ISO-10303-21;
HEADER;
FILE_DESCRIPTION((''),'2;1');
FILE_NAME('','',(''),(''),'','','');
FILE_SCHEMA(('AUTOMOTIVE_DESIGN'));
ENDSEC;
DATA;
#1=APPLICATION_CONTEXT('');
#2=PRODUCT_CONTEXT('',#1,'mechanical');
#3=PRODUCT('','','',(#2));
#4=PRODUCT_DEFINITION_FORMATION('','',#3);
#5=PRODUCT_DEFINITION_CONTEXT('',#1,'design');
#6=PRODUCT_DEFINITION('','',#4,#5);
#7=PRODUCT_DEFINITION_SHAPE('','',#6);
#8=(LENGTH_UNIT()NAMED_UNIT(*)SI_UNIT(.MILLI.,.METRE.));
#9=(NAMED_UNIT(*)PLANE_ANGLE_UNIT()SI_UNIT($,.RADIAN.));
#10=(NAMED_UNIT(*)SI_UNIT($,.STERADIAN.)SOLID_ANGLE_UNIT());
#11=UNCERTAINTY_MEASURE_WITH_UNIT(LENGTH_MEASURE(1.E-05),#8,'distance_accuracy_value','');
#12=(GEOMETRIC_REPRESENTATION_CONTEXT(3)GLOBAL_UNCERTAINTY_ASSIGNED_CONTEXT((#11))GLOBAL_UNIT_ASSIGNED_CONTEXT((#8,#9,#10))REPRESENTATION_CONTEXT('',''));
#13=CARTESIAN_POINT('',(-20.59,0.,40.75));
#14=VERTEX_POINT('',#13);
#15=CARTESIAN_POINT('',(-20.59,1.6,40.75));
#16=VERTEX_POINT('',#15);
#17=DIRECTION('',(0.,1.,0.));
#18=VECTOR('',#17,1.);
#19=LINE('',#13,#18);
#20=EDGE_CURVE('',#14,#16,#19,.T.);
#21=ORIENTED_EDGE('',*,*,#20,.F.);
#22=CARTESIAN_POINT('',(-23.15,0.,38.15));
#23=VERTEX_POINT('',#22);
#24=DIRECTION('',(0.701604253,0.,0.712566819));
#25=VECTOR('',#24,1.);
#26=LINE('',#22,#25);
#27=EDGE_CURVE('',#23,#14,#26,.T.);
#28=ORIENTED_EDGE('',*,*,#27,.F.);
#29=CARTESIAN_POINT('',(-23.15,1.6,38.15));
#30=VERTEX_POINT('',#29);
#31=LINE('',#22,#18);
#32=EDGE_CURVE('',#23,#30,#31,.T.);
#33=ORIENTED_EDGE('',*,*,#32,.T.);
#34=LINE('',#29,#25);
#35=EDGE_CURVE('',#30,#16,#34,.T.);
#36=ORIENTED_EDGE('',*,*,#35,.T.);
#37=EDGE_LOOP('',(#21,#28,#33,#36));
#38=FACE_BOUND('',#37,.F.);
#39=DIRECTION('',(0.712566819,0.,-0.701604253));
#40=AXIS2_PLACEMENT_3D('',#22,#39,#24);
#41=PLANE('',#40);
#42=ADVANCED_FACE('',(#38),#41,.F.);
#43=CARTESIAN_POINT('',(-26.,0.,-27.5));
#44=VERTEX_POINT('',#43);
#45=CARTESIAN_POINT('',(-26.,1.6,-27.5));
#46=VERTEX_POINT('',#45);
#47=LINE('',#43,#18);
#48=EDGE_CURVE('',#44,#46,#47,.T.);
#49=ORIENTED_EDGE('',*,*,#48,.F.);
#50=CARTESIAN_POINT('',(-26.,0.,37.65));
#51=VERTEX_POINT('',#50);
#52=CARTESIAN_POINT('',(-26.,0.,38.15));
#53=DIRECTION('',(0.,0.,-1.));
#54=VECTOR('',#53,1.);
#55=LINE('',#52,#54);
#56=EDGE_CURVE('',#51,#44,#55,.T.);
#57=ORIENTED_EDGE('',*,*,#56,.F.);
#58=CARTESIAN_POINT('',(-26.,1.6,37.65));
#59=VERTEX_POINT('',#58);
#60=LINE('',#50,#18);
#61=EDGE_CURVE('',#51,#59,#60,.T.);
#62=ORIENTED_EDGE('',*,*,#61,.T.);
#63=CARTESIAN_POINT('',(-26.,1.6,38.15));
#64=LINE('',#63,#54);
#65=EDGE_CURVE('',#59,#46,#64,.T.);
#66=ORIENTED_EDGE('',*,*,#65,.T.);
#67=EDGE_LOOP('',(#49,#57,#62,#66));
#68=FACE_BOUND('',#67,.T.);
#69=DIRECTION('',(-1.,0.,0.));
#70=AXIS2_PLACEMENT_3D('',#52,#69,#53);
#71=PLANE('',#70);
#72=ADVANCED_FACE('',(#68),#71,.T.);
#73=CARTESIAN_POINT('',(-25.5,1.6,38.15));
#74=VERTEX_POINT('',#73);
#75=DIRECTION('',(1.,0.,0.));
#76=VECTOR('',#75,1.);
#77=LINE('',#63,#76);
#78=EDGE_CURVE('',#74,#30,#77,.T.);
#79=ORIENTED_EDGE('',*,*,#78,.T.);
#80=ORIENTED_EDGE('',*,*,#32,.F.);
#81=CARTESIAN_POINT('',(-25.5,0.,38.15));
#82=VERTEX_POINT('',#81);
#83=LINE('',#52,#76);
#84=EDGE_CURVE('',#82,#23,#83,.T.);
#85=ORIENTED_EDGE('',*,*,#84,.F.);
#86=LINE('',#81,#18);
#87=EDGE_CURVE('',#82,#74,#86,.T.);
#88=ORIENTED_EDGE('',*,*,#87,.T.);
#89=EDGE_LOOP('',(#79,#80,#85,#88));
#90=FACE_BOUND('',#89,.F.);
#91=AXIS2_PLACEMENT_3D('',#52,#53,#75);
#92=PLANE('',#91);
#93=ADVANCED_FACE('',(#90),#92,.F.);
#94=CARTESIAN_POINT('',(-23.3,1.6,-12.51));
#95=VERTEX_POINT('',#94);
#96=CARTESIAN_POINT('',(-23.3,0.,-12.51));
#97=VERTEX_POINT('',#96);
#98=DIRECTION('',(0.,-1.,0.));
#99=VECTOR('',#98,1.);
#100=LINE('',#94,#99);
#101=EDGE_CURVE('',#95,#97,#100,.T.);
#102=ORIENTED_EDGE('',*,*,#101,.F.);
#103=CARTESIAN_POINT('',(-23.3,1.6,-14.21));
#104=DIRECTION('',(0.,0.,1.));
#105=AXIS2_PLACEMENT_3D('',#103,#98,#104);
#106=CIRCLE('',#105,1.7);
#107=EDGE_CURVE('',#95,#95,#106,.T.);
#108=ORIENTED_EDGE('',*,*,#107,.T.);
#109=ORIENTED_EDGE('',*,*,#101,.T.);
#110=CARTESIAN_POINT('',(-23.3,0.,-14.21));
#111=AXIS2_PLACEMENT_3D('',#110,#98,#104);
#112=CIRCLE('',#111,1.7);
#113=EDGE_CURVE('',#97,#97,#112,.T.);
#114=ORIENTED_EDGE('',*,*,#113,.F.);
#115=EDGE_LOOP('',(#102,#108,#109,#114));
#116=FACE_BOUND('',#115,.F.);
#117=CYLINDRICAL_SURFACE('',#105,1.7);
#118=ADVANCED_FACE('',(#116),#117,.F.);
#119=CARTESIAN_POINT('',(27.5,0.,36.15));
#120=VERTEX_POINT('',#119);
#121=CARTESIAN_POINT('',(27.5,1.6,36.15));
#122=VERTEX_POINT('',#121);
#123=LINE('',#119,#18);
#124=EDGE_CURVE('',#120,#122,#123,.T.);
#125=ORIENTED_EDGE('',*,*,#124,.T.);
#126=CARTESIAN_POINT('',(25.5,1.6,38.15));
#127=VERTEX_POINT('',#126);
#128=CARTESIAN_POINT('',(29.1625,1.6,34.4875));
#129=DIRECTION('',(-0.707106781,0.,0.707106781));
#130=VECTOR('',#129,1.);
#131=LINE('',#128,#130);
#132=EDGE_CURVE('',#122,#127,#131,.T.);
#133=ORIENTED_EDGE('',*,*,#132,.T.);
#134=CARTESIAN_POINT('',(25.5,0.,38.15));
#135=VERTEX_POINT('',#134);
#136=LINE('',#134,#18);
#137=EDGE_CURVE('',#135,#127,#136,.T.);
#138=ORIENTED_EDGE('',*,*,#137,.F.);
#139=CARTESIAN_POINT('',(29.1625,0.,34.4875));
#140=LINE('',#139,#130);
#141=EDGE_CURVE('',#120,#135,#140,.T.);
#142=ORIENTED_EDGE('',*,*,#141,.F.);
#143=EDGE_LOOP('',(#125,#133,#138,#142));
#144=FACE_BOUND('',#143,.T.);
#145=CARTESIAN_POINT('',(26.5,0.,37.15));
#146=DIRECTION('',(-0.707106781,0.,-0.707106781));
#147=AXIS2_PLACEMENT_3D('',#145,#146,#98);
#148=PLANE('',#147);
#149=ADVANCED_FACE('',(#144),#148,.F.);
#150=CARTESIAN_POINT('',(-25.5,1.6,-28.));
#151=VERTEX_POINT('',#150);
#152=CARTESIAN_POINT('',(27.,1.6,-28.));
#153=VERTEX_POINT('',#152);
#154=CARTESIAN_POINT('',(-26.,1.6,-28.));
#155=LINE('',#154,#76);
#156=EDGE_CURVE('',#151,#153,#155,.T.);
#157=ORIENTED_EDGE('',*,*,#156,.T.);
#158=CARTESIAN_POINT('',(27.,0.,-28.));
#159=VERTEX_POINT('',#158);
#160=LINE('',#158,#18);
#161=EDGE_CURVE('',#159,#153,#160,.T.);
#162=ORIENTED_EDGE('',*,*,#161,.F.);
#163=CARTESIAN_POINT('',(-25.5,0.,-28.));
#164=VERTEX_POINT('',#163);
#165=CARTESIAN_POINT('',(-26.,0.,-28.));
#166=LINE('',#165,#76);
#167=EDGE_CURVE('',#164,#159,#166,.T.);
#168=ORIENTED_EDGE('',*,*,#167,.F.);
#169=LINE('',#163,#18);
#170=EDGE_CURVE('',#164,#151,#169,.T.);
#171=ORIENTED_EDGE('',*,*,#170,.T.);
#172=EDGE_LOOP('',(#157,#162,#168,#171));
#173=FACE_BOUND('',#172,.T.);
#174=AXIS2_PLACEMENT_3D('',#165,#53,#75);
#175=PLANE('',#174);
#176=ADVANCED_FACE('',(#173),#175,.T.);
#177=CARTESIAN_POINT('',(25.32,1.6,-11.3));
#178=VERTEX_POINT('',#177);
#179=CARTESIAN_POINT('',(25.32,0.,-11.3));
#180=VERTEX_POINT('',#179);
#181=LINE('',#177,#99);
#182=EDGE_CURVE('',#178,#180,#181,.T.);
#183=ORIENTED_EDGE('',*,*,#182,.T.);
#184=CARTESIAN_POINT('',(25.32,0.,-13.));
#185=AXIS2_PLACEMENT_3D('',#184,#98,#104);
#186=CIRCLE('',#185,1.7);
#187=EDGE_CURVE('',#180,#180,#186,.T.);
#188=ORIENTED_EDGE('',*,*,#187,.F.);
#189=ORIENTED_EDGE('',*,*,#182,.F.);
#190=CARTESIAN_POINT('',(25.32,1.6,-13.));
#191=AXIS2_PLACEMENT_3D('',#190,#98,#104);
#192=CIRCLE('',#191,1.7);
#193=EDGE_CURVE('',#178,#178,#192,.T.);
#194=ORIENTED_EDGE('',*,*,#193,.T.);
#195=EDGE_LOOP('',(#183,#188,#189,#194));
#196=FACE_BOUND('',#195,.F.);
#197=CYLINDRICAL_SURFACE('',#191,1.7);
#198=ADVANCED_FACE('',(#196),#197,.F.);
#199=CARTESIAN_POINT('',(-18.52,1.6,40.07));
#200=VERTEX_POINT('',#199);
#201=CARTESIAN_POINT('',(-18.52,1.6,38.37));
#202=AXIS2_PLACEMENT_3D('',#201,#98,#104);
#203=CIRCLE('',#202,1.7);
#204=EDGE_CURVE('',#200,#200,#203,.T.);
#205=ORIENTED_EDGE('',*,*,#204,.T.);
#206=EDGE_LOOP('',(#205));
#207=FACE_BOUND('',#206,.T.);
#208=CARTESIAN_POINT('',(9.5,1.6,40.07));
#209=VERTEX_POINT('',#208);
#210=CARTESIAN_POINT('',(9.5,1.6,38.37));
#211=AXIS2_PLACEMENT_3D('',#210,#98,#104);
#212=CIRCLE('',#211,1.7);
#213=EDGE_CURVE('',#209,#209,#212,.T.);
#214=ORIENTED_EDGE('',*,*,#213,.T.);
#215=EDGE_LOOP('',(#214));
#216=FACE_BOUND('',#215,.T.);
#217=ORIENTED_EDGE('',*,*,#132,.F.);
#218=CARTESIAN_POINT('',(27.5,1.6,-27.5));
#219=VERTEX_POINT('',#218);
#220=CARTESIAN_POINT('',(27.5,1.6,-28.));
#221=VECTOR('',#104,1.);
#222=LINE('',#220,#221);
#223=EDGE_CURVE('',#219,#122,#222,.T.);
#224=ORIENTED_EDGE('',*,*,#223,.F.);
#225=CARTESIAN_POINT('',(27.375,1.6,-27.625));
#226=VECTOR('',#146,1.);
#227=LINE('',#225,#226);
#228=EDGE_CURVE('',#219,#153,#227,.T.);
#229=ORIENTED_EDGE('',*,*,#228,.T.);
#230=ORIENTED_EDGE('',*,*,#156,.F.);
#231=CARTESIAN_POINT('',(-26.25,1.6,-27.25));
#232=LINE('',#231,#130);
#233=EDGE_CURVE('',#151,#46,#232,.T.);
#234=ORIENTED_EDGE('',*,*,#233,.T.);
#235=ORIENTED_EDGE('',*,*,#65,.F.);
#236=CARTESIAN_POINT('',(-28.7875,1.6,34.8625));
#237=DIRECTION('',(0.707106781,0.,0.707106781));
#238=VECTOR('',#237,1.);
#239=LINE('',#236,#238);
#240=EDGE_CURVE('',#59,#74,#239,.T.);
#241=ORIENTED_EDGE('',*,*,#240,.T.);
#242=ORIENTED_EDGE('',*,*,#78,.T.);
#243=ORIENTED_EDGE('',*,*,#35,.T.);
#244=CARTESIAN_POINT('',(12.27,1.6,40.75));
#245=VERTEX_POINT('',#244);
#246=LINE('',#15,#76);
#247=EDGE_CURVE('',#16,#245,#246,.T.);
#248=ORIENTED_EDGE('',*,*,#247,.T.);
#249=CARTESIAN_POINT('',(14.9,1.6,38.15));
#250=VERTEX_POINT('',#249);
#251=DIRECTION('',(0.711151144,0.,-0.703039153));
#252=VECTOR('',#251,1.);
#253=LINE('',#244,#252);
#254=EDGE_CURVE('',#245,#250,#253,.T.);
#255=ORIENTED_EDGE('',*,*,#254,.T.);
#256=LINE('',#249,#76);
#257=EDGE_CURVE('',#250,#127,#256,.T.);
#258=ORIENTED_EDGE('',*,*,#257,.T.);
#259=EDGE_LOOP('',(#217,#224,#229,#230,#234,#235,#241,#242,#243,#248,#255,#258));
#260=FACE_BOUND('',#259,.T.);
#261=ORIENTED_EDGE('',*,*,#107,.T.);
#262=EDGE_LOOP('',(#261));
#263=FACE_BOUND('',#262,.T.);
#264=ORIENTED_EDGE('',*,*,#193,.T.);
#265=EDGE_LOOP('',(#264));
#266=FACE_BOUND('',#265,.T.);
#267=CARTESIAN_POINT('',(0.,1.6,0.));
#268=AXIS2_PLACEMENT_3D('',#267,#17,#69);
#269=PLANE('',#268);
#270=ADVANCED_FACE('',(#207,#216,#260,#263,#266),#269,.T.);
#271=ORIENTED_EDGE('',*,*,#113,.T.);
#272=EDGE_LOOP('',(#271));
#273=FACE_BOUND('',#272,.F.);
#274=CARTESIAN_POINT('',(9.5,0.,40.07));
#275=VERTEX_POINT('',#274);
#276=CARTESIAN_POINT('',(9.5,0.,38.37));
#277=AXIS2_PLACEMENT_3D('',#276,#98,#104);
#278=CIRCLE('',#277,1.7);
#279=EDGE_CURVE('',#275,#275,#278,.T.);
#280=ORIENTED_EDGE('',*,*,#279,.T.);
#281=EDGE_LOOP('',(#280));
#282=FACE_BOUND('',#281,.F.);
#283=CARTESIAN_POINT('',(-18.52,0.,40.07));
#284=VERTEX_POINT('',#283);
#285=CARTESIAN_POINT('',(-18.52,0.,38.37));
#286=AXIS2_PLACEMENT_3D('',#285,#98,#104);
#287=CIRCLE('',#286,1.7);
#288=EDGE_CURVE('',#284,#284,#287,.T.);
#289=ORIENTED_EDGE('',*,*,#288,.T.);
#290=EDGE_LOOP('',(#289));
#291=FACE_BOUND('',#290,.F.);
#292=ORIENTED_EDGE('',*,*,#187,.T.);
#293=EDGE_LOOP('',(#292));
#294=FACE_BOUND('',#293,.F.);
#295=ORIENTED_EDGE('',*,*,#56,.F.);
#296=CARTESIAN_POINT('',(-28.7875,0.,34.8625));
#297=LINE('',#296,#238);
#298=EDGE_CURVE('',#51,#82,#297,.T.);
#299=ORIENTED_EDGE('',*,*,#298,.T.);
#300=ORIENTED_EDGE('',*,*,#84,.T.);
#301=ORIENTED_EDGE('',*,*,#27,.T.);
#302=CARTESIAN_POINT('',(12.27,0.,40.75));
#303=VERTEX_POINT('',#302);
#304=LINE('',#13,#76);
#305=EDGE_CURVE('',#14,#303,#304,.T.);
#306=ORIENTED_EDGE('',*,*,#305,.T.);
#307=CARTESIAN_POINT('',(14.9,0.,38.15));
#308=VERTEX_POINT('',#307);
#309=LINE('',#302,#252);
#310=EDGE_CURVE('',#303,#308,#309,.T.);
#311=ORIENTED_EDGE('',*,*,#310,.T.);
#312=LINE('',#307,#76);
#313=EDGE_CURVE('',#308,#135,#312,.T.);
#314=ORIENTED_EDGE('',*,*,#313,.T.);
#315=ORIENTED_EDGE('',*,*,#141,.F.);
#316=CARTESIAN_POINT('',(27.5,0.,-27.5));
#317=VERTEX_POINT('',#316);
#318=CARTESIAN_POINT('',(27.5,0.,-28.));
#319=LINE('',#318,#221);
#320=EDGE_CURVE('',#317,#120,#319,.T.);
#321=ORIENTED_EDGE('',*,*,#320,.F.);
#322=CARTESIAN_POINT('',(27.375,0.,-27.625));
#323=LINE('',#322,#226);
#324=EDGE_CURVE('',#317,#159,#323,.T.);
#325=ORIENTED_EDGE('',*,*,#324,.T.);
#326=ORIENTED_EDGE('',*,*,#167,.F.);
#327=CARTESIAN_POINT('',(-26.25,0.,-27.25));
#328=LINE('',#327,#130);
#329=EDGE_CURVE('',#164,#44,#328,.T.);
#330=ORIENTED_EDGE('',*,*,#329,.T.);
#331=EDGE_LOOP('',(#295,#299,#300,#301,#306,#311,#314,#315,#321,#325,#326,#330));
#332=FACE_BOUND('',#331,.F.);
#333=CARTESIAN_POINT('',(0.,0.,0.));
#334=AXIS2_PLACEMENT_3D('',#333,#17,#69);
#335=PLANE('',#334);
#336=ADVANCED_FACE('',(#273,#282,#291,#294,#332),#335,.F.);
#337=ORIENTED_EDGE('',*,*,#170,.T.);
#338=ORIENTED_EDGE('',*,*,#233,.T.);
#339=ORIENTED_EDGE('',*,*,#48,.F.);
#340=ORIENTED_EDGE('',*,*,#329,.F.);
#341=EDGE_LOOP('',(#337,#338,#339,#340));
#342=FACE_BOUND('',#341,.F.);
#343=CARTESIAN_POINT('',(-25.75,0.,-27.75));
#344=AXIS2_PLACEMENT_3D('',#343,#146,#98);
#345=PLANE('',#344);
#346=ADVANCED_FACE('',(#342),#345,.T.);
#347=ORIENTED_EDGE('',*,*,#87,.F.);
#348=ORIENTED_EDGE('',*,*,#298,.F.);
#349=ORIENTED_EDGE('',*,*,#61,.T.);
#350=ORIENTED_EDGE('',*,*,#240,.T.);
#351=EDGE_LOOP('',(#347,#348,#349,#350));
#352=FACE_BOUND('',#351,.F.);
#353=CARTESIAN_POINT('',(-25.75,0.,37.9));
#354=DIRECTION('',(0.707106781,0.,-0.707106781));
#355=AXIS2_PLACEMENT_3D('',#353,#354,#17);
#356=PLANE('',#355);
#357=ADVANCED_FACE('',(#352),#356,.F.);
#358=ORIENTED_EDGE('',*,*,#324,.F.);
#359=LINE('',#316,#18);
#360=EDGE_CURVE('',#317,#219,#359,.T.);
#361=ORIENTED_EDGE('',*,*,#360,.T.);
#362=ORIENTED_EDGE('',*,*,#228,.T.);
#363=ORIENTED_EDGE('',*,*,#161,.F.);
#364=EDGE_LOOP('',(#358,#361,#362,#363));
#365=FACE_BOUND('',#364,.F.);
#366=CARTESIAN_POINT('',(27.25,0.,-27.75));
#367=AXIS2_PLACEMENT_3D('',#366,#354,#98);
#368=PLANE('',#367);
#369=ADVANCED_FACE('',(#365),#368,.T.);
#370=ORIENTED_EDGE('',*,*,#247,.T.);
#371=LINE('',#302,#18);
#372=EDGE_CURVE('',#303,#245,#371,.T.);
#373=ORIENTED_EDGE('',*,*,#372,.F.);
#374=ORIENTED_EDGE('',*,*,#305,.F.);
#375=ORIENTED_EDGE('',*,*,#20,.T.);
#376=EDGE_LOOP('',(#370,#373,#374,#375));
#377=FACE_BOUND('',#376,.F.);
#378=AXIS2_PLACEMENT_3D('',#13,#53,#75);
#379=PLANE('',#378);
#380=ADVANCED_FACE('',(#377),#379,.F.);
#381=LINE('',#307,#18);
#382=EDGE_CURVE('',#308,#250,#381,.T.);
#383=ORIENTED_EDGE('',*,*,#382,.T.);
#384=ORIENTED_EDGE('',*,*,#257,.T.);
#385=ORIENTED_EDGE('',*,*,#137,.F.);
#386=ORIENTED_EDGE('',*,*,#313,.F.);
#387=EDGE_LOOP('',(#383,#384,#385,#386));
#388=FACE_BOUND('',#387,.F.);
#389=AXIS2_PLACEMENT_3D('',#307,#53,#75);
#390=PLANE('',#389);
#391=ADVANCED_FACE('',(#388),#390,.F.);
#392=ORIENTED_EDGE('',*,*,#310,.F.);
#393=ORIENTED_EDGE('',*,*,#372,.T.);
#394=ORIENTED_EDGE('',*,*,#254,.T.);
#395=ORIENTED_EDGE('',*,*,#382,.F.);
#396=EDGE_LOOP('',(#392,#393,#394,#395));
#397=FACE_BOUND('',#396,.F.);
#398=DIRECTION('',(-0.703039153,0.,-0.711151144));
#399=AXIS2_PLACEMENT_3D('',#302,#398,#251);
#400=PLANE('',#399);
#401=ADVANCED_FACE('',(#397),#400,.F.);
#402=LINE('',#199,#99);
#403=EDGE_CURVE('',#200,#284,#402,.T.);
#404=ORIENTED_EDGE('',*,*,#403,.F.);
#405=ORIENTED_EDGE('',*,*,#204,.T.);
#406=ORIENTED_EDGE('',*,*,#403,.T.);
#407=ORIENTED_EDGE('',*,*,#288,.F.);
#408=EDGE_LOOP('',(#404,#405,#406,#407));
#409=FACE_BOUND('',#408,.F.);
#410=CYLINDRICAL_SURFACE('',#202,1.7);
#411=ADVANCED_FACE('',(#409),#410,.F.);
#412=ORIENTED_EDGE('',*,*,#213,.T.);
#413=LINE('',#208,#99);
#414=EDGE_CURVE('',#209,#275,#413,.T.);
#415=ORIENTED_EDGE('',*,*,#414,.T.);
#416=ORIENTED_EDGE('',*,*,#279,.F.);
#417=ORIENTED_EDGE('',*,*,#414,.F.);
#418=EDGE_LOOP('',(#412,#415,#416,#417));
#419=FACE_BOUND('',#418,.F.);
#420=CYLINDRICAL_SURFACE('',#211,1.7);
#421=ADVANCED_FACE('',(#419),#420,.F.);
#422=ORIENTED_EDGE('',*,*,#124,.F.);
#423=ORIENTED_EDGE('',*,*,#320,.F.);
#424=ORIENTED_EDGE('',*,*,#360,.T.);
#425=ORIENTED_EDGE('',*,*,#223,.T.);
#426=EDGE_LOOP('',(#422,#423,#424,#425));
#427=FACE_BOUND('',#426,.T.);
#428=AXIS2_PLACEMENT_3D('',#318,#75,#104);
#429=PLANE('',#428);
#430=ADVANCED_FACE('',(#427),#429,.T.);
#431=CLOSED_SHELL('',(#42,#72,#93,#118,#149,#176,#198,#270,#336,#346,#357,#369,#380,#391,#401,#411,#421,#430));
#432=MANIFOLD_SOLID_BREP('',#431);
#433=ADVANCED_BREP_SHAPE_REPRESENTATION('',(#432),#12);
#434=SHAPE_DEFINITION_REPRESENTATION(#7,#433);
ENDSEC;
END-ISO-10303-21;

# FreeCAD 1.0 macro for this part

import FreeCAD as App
import Part
import Sketcher
from FreeCAD import Vector
Q = App.Units.Quantity


def edges_at(feature, points):
    """Names of the edges that pass closest to the given points."""
    edges = feature.Shape.Edges
    near = lambda p: min(range(len(edges)), key=lambda i: edges[i].distToShape(Part.Vertex(*p))[0])
    return sorted({f"Edge{near(p) + 1}" for p in points})


def add_polygon(sketch, points):
    """Adds a closed chain of lines whose ends are joined by coincident constraints."""
    first, n = sketch.GeometryCount, len(points)
    for a, b in zip(points, points[1:] + points[:1]):
        sketch.addGeometry(Part.LineSegment(App.Vector(*a, 0), App.Vector(*b, 0)), False)
    for i in range(n):
        sketch.addConstraint(Sketcher.Constraint("Coincident", first + i, 2, first + (i + 1) % n, 1))

doc = App.newDocument("Part")
body = doc.addObject("PartDesign::Body", "Body")

# Sketch on XZ plane
sketch1 = body.newObject("Sketcher::SketchObject", "Sketch")
sketch1.AttachmentSupport = (doc.getObject("XZ_Plane"), [""])
sketch1.MapMode = "FlatFace"
add_polygon(sketch1, [(27.5, -28), (-26, -28), (-26, 38.1), (-23.1, 38.1), (-20.6, 40.8), (12.3, 40.8), (14.9, 38.1), (27.5, 38.1)])  # lines 0-7
sketch1.addConstraint(Sketcher.Constraint("Horizontal", 0))
sketch1.addConstraint(Sketcher.Constraint("Vertical", 1))
sketch1.addConstraint(Sketcher.Constraint("Horizontal", 2))
sketch1.addConstraint(Sketcher.Constraint("Horizontal", 4))
sketch1.addConstraint(Sketcher.Constraint("Horizontal", 6))
sketch1.addConstraint(Sketcher.Constraint("Vertical", 7))
sketch1.addConstraint(Sketcher.Constraint("Horizontal", 2, 2, 5, 2))
sketch1.addConstraint(Sketcher.Constraint("DistanceX", 0, 2, 0, 1, Q("53.5 mm")))
sketch1.addConstraint(Sketcher.Constraint("DistanceX", 6, 1, 6, 2, Q("12.6 mm")))
sketch1.addConstraint(Sketcher.Constraint("DistanceX", 0, 2, -1, 1, Q("26 mm")))
sketch1.addConstraint(Sketcher.Constraint("DistanceY", 0, 2, -1, 1, Q("28 mm")))
sketch1.addConstraint(Sketcher.Constraint("DistanceX", 2, 1, 2, 2, Q("2.85 mm")))
sketch1.addConstraint(Sketcher.Constraint("DistanceX", 4, 1, 4, 2, Q("32.86 mm")))
sketch1.addConstraint(Sketcher.Constraint("DistanceY", 2, 2, 3, 2, Q("2.6 mm")))
sketch1.addConstraint(Sketcher.Constraint("DistanceX", 2, 2, 3, 2, Q("2.56 mm")))
sketch1.addConstraint(Sketcher.Constraint("DistanceY", 0, 2, 3, 2, Q("68.75 mm")))
pad1 = body.newObject("PartDesign::Pad", "Pad")
pad1.Profile = sketch1
pad1.Length = 1.6
pad1.Reversed = True
doc.recompute()

chamfer = body.newObject("PartDesign::Chamfer", "Chamfer")
chamfer.Base = (pad1, edges_at(pad1, [(27.5, 0.8, 38.15)]))
chamfer.Size = 2
doc.recompute()

chamfer2 = body.newObject("PartDesign::Chamfer", "Chamfer001")
chamfer2.Base = (chamfer, edges_at(chamfer, [(-26, 0.8, 38.15), (-26, 0.8, -28), (27.5, 0.8, -28)]))
chamfer2.Size = 0.5

# Sketch on XZ plane
sketch2 = body.newObject("Sketcher::SketchObject", "Sketch001")
sketch2.AttachmentSupport = (doc.getObject("XZ_Plane"), [""])
sketch2.MapMode = "FlatFace"
sketch2.AttachmentOffset = App.Placement(Vector(0, 0, -1.6), App.Rotation())
sketch2.addGeometry(Part.Circle(Vector(-23.3, -14.2, 0), Vector(0, 0, 1), 1.7), False)
sketch2.addGeometry(Part.Circle(Vector(25.3, -13, 0), Vector(0, 0, 1), 1.7), False)
sketch2.addGeometry(Part.Circle(Vector(9.5, 38.4, 0), Vector(0, 0, 1), 1.7), False)
sketch2.addGeometry(Part.Circle(Vector(-18.5, 38.4, 0), Vector(0, 0, 1), 1.7), False)
sketch2.addConstraint(Sketcher.Constraint("Equal", 0, 1))
sketch2.addConstraint(Sketcher.Constraint("Equal", 1, 2))
sketch2.addConstraint(Sketcher.Constraint("Equal", 2, 3))
sketch2.addConstraint(Sketcher.Constraint("Horizontal", 2, 3, 3, 3))
sketch2.addConstraint(Sketcher.Constraint("Diameter", 0, Q("3.4 mm")))
sketch2.addConstraint(Sketcher.Constraint("DistanceY", 1, 3, -1, 1, Q("13 mm")))
sketch2.addConstraint(Sketcher.Constraint("DistanceX", 0, 3, -1, 1, Q("23.3 mm")))
sketch2.addConstraint(Sketcher.Constraint("DistanceX", -1, 1, 2, 3, Q("9.5 mm")))
sketch2.addConstraint(Sketcher.Constraint("DistanceY", 0, 3, -1, 1, Q("14.21 mm")))
sketch2.addConstraint(Sketcher.Constraint("DistanceX", -1, 1, 1, 3, Q("25.32 mm")))
sketch2.addConstraint(Sketcher.Constraint("DistanceY", -1, 1, 2, 3, Q("38.37 mm")))
sketch2.addConstraint(Sketcher.Constraint("DistanceX", 3, 3, -1, 1, Q("18.52 mm")))
doc.recompute()
hole = body.newObject("PartDesign::Hole", "Hole")
hole.Profile = sketch2
hole.ThreadType = "None"
hole.Diameter = 3.4
hole.DepthType = "ThroughAll"
hole.Reversed = True

doc.recompute()
